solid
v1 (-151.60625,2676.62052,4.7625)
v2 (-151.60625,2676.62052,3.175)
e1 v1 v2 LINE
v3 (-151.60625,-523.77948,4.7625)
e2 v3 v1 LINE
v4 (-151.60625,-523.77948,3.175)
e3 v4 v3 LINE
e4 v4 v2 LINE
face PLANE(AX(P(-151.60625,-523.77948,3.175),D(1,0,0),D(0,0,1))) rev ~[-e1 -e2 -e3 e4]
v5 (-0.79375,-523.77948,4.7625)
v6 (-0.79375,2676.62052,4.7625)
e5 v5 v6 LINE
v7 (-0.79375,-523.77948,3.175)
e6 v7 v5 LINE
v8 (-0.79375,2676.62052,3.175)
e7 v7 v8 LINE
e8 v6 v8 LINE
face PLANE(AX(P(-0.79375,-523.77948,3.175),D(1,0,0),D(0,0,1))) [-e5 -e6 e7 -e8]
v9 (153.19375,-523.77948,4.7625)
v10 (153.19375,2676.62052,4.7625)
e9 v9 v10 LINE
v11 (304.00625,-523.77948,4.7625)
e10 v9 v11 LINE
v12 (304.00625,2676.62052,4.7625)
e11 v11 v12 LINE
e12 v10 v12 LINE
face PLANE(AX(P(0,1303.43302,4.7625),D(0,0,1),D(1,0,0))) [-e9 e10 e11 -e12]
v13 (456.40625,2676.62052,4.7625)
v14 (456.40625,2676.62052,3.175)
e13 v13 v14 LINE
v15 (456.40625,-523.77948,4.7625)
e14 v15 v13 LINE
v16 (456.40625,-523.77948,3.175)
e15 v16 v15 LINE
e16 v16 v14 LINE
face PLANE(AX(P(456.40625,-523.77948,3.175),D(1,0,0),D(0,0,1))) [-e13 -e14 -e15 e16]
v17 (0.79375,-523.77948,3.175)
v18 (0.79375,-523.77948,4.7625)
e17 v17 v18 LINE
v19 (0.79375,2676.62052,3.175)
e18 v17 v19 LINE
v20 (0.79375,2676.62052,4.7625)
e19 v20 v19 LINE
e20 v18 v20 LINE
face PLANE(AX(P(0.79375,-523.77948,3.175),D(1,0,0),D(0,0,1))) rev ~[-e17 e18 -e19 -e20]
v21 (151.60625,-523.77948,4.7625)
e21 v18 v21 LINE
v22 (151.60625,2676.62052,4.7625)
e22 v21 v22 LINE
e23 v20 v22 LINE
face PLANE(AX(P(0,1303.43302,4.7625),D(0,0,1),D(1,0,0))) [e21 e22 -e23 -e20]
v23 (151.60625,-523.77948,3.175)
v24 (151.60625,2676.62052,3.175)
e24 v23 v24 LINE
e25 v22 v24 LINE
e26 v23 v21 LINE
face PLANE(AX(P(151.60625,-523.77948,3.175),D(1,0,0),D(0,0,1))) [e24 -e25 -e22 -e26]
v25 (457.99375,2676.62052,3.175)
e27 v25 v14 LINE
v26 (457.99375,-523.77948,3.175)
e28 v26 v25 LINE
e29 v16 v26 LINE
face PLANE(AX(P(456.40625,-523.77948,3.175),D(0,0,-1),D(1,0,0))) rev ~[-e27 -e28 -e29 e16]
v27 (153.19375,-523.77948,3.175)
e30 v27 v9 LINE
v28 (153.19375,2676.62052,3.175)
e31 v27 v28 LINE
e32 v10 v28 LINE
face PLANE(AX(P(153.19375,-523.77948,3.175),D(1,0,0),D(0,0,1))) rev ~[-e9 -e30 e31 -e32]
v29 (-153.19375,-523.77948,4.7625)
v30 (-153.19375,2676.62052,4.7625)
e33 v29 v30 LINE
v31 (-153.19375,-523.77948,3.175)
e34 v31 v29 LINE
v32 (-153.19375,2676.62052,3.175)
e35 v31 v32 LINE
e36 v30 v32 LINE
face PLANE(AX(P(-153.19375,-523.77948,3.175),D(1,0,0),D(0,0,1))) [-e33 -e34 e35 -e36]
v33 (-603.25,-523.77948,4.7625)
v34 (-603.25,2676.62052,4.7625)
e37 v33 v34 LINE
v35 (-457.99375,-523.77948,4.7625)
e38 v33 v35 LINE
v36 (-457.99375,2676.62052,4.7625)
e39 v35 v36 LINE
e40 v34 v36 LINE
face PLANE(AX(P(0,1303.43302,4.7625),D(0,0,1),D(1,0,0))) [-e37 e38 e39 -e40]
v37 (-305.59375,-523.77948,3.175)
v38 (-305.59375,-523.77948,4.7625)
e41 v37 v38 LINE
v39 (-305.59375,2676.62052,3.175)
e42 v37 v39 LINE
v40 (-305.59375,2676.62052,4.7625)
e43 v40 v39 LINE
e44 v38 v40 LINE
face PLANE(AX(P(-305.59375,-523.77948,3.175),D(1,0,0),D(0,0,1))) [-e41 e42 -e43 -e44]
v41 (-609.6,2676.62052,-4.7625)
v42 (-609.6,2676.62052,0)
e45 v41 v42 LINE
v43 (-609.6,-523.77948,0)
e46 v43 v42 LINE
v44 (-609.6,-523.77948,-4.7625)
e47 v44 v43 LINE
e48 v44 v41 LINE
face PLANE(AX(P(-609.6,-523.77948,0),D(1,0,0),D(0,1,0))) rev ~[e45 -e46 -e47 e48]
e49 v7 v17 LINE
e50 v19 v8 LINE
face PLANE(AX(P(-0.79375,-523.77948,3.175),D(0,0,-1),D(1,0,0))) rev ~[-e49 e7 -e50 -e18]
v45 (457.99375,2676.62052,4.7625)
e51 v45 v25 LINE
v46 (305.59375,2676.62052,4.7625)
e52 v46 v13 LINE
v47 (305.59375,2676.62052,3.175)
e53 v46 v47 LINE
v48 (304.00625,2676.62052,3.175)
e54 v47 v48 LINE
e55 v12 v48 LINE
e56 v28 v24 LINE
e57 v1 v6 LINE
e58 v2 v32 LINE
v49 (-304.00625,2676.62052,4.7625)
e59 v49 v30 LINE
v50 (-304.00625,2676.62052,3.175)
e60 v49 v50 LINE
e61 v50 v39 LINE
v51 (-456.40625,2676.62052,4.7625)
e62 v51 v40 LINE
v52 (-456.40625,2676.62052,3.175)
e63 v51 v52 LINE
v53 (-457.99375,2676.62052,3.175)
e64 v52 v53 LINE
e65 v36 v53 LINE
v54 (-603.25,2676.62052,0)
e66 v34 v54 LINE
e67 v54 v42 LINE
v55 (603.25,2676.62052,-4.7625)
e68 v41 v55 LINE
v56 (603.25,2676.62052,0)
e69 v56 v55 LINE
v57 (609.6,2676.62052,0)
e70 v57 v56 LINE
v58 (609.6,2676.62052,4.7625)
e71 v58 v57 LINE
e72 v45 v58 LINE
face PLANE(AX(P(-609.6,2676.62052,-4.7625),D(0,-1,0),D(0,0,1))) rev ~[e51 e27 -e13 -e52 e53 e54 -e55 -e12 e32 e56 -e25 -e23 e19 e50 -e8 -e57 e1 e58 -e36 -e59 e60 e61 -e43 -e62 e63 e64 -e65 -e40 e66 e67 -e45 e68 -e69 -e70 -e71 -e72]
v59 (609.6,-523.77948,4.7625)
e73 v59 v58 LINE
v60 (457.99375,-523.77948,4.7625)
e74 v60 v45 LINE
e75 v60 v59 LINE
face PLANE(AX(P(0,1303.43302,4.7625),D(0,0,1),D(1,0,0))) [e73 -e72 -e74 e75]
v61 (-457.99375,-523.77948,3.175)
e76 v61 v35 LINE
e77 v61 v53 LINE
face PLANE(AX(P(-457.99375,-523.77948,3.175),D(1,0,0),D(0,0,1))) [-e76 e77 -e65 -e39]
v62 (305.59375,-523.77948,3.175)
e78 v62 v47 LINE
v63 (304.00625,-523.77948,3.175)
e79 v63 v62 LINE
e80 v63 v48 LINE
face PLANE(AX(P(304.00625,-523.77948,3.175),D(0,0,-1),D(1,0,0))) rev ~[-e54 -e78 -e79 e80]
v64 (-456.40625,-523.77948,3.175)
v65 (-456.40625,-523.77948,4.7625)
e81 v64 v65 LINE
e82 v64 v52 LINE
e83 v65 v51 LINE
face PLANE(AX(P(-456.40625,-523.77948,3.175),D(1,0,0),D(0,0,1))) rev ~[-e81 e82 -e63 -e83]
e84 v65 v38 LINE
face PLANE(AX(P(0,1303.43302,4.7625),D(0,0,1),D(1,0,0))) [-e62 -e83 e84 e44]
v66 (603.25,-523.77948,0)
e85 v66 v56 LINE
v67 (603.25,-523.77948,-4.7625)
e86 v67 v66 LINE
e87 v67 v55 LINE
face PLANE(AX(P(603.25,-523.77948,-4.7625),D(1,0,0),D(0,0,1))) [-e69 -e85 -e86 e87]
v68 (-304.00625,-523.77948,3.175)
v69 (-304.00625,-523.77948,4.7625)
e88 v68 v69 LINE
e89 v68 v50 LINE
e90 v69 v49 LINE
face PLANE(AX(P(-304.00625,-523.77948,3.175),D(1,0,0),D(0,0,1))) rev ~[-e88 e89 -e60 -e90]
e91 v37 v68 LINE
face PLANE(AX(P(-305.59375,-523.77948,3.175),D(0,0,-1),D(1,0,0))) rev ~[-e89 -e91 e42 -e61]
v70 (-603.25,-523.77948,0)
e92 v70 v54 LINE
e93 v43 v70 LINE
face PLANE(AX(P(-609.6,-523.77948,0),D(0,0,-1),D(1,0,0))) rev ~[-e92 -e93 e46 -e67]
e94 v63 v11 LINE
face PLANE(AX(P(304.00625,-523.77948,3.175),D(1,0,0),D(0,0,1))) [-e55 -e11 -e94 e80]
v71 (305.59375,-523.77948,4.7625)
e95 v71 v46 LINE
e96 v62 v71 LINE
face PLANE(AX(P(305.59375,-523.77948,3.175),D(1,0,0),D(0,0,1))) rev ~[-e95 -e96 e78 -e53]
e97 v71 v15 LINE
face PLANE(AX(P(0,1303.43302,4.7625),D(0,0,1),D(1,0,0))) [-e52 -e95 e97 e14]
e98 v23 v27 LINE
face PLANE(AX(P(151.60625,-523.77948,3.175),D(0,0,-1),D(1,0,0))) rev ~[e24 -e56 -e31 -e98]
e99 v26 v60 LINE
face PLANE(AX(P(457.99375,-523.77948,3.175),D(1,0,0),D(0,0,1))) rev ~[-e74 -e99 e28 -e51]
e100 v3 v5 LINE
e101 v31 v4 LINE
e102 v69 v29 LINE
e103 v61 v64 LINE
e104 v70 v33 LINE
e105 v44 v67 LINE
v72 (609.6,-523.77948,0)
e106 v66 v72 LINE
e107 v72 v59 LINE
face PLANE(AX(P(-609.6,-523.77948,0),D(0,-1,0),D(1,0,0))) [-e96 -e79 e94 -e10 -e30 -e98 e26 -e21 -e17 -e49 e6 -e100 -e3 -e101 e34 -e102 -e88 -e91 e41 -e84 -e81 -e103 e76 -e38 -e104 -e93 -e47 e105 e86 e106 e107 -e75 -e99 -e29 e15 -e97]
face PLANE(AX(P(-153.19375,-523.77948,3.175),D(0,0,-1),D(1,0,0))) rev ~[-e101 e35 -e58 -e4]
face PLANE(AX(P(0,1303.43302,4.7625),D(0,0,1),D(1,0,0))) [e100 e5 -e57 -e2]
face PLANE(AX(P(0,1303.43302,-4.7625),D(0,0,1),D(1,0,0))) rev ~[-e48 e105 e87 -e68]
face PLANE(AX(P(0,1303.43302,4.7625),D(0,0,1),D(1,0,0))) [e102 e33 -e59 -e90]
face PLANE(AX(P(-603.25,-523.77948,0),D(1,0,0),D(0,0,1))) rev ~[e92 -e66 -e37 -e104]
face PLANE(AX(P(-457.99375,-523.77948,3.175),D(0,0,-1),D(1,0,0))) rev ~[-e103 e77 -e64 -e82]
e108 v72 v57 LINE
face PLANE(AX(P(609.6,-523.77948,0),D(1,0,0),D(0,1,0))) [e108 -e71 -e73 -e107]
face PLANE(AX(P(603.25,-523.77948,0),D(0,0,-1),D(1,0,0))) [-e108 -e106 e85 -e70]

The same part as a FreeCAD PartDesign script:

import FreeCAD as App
import Part
import Sketcher
from FreeCAD import Vector
Q = App.Units.Quantity


def add_polygon(sketch, points):
    """Adds a closed chain of lines whose ends are joined by coincident constraints."""
    first, n = sketch.GeometryCount, len(points)
    for a, b in zip(points, points[1:] + points[:1]):
        sketch.addGeometry(Part.LineSegment(App.Vector(*a, 0), App.Vector(*b, 0)), False)
    for i in range(n):
        sketch.addConstraint(Sketcher.Constraint("Coincident", first + i, 2, first + (i + 1) % n, 1))

doc = App.newDocument("Part")
body = doc.addObject("PartDesign::Body", "Body")

# Sketch on XY plane
sketch1 = body.newObject("Sketcher::SketchObject", "Sketch")
sketch1.AttachmentSupport = (doc.getObject("XY_Plane"), [""])
sketch1.MapMode = "FlatFace"
add_polygon(sketch1, [(-610, 3131), (-610, -524), (610, -524), (610, 3131)])  # lines 0-3
sketch1.addConstraint([
    Sketcher.Constraint("Vertical", 0),
    Sketcher.Constraint("Horizontal", 1),
    Sketcher.Constraint("Vertical", 2),
    Sketcher.Constraint("Horizontal", 3),
    Sketcher.Constraint("DistanceX", 1, 1, 1, 2, Q("48 in")),
    Sketcher.Constraint("DistanceX", 0, 2, -1, 1, Q("24 in")),
    Sketcher.Constraint("DistanceY", 0, 2, 0, 1, Q("143.875 in")),
    Sketcher.Constraint("DistanceY", 0, 2, -1, 1, 523.77948),
])
pad1 = body.newObject("PartDesign::Pad", "Pad")
pad1.Profile = sketch1
pad1.Length = Q("0.375 in")
pad1.Midplane = True

# Sketch on XZ plane
sketch2 = body.newObject("Sketcher::SketchObject", "Sketch001")
sketch2.AttachmentSupport = (doc.getObject("XZ_Plane"), [""])
sketch2.MapMode = "FlatFace"
sketch2.AttachmentOffset = App.Placement(Vector(0, 0, 523.77948), App.Rotation())
add_polygon(sketch2, [(603.2, 0), (603.2, -4.8), (609.6, -4.8), (609.6, 0)])  # lines 0-3
add_polygon(sketch2, [(-609.6, 4.8), (-609.6, 0), (-603.2, 0), (-603.2, 4.8)])  # lines 4-7
sketch2.addConstraint([
    Sketcher.Constraint("Vertical", 0),
    Sketcher.Constraint("Horizontal", 1),
    Sketcher.Constraint("Vertical", 2),
    Sketcher.Constraint("Horizontal", 3),
    Sketcher.Constraint("Vertical", 4),
    Sketcher.Constraint("Horizontal", 5),
    Sketcher.Constraint("Vertical", 6),
    Sketcher.Constraint("Horizontal", 7),
    Sketcher.Constraint("Symmetric", 2, 2, 4, 2, -1, 1),
    Sketcher.Constraint("Symmetric", 0, 2, 6, 2, -1, 1),
    Sketcher.Constraint("PointOnObject", 2, 2, -1),
    Sketcher.Constraint("DistanceX", -1, 1, 1, 2, Q("24 in")),
    Sketcher.Constraint("DistanceX", 1, 1, 1, 2, Q("0.25 in")),
    Sketcher.Constraint("DistanceY", 0, 2, 0, 1, Q("0.1875 in")),
])
pocket1 = body.newObject("PartDesign::Pocket", "Pocket")
pocket1.Profile = sketch2
pocket1.Type = "ThroughAll"

# Sketch on XZ plane
sketch3 = body.newObject("Sketcher::SketchObject", "Sketch002")
sketch3.AttachmentSupport = (doc.getObject("XZ_Plane"), [""])
sketch3.MapMode = "FlatFace"
sketch3.AttachmentOffset = App.Placement(Vector(0, 0, 523.77948), App.Rotation())
add_polygon(sketch3, [(-458, 4.8), (-458, 3.2), (-456.4, 3.2), (-456.4, 4.8)])  # lines 0-3
add_polygon(sketch3, [(-305.6, 4.8), (-305.6, 3.2), (-304, 3.2), (-304, 4.8)])  # lines 4-7
add_polygon(sketch3, [(-153.2, 4.8), (-153.2, 3.2), (-151.6, 3.2), (-151.6, 4.8)])  # lines 8-11
add_polygon(sketch3, [(-0.8, 4.8), (-0.8, 3.2), (0.8, 3.2), (0.8, 4.8)])  # lines 12-15
add_polygon(sketch3, [(151.6, 4.8), (151.6, 3.2), (153.2, 3.2), (153.2, 4.8)])  # lines 16-19
add_polygon(sketch3, [(304, 4.8), (304, 3.2), (305.6, 3.2), (305.6, 4.8)])  # lines 20-23
add_polygon(sketch3, [(456.4, 4.8), (456.4, 3.2), (458, 3.2), (458, 4.8)])  # lines 24-27
sketch3.addConstraint([
    Sketcher.Constraint("Vertical", 0),
    Sketcher.Constraint("Horizontal", 1),
    Sketcher.Constraint("Vertical", 2),
    Sketcher.Constraint("Horizontal", 3),
    Sketcher.Constraint("Vertical", 4),
    Sketcher.Constraint("Horizontal", 5),
    Sketcher.Constraint("Vertical", 6),
    Sketcher.Constraint("Horizontal", 7),
    Sketcher.Constraint("Vertical", 8),
    Sketcher.Constraint("Horizontal", 9),
    Sketcher.Constraint("Vertical", 10),
    Sketcher.Constraint("Horizontal", 11),
    Sketcher.Constraint("Vertical", 12),
    Sketcher.Constraint("Horizontal", 13),
    Sketcher.Constraint("Vertical", 14),
    Sketcher.Constraint("Horizontal", 15),
    Sketcher.Constraint("Vertical", 16),
    Sketcher.Constraint("Horizontal", 17),
    Sketcher.Constraint("Vertical", 18),
    Sketcher.Constraint("Horizontal", 19),
    Sketcher.Constraint("Vertical", 20),
    Sketcher.Constraint("Horizontal", 21),
    Sketcher.Constraint("Vertical", 22),
    Sketcher.Constraint("Horizontal", 23),
    Sketcher.Constraint("Vertical", 24),
    Sketcher.Constraint("Horizontal", 25),
    Sketcher.Constraint("Vertical", 26),
    Sketcher.Constraint("Horizontal", 27),
    Sketcher.Constraint("Symmetric", 9, 2, 16, 2, -2),
    Sketcher.Constraint("Symmetric", 11, 2, 18, 2, -2),
    Sketcher.Constraint("Symmetric", 5, 2, 20, 2, -2),
    Sketcher.Constraint("Symmetric", 7, 2, 22, 2, -2),
    Sketcher.Constraint("Symmetric", 1, 2, 24, 2, -2),
    Sketcher.Constraint("Symmetric", 3, 2, 26, 2, -2),
    Sketcher.Constraint("Horizontal", 1, 2, 4, 2),
    Sketcher.Constraint("Horizontal", 3, 2, 6, 2),
    Sketcher.Constraint("Horizontal", 5, 2, 8, 2),
    Sketcher.Constraint("Horizontal", 7, 2, 10, 2),
    Sketcher.Constraint("Horizontal", 9, 2, 12, 2),
    Sketcher.Constraint("Horizontal", 11, 2, 14, 2),
    Sketcher.Constraint("Equal", 3, 5),
    Sketcher.Constraint("Equal", 7, 9),
    Sketcher.Constraint("Equal", 11, 13),
    Sketcher.Constraint("Equal", 27, 0),
    Sketcher.Constraint("DistanceX", 0, 2, 4, 2, Q("6 in")),
    Sketcher.Constraint("DistanceX", 4, 2, 8, 2, Q("6 in")),
    Sketcher.Constraint("DistanceX", 8, 2, 12, 2, Q("6 in")),
    Sketcher.Constraint("DistanceX", 12, 2, 16, 2, Q("6 in")),
    Sketcher.Constraint("DistanceX", 1, 1, 1, 2, Q("0.0625 in")),
    Sketcher.Constraint("DistanceY", -1, 1, 0, 2, Q("0.125 in")),
])
pocket2 = body.newObject("PartDesign::Pocket", "Pocket001")
pocket2.Profile = sketch3
pocket2.Type = "ThroughAll"

# Sketch on YZ plane
sketch4 = body.newObject("Sketcher::SketchObject", "Sketch003")
sketch4.AttachmentSupport = (doc.getObject("YZ_Plane"), [""])
sketch4.MapMode = "FlatFace"
sketch4.AttachmentOffset = App.Placement(Vector(0, 0, -24 * 25.4), App.Rotation())
add_polygon(sketch4, [(3131, 5), (3131, -5), (2677, -5), (2677, 5)])  # lines 0-3
sketch4.addConstraint([
    Sketcher.Constraint("Vertical", 0),
    Sketcher.Constraint("Horizontal", 1),
    Sketcher.Constraint("Vertical", 2),
    Sketcher.Constraint("Horizontal", 3),
    Sketcher.Constraint("DistanceX", 1, 2, 1, 1, Q("17.875 in")),
    Sketcher.Constraint("DistanceY", 0, 2, 0, 1, Q("0.375 in")),
    Sketcher.Constraint("DistanceY", 0, 2, -1, 1, Q("0.1875 in")),
    Sketcher.Constraint("DistanceX", -1, 1, 0, 2, 3130.64552),
])
pocket3 = body.newObject("PartDesign::Pocket", "Pocket002")
pocket3.Profile = sketch4
pocket3.Type = "ThroughAll"
pocket3.Reversed = True

doc.recompute()
